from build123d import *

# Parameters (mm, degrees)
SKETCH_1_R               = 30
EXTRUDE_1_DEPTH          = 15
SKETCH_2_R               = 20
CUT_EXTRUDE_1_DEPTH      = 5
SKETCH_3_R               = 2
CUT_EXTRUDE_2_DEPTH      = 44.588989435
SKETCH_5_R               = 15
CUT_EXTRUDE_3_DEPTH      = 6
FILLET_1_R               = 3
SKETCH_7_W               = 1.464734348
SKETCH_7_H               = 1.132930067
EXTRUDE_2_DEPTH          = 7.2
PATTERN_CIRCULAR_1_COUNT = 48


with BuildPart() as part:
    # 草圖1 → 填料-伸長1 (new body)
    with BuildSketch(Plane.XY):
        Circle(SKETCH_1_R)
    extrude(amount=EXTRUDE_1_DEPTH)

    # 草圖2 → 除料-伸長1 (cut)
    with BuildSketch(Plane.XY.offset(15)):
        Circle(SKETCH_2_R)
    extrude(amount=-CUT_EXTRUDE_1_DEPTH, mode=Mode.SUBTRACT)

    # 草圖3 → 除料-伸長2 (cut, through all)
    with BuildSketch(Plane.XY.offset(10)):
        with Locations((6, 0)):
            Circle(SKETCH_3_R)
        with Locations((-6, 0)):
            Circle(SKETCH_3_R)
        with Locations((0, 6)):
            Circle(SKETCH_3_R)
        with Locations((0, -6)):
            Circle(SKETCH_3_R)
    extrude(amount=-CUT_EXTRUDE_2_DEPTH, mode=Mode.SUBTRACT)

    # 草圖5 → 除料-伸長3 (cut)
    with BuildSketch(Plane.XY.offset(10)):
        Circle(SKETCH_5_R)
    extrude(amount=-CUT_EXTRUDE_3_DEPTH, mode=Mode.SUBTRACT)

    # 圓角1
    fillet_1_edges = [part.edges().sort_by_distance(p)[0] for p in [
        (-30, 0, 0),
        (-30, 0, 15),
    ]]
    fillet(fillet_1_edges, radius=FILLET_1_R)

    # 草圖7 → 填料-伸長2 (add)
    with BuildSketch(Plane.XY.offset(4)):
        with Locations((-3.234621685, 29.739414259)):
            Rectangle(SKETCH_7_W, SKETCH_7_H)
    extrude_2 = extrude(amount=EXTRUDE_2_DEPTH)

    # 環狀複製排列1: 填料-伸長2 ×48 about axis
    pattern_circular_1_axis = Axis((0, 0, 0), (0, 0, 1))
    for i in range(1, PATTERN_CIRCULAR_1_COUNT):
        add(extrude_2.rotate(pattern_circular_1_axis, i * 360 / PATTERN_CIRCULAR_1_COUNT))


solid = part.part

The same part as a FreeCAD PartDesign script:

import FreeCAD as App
import Part
import Sketcher


def edges_at(feature, points):
    """Names of the edges that pass closest to the given points."""
    edges = feature.Shape.Edges
    near = lambda p: min(range(len(edges)), key=lambda i: edges[i].distToShape(Part.Vertex(*p))[0])
    return sorted({f"Edge{near(p) + 1}" for p in points})


def add_polygon(sketch, points):
    """Adds a closed chain of lines whose ends are joined by coincident constraints."""
    first, n = sketch.GeometryCount, len(points)
    for a, b in zip(points, points[1:] + points[:1]):
        sketch.addGeometry(Part.LineSegment(App.Vector(*a, 0), App.Vector(*b, 0)), False)
    for i in range(n):
        sketch.addConstraint(Sketcher.Constraint("Coincident", first + i, 2, first + (i + 1) % n, 1))

doc = App.newDocument("Part")
body = doc.addObject("PartDesign::Body", "Body")

# Sketch on XY plane
sketch1 = body.newObject("Sketcher::SketchObject", "Sketch")
sketch1.AttachmentSupport = (doc.getObject("XY_Plane"), [""])
sketch1.MapMode = "FlatFace"
sketch1.addGeometry(Part.Circle(App.Vector(0, 0, 0), App.Vector(0, 0, 1), 30), False)
sketch1.addConstraint([
    Sketcher.Constraint("Coincident", 0, 3, -1, 1),
    Sketcher.Constraint("Diameter", 0, 60.0),
])
pad1 = body.newObject("PartDesign::Pad", "Pad")
pad1.Profile = sketch1
pad1.Length = 15

# Sketch on XY plane
sketch2 = body.newObject("Sketcher::SketchObject", "Sketch001")
sketch2.AttachmentSupport = (doc.getObject("XY_Plane"), [""])
sketch2.MapMode = "FlatFace"
sketch2.AttachmentOffset = App.Placement(App.Vector(0, 0, 15), App.Rotation())
sketch2.addGeometry(Part.Circle(App.Vector(0, 0, 0), App.Vector(0, 0, 1), 20), False)
sketch2.addConstraint([
    Sketcher.Constraint("Coincident", 0, 3, -1, 1),
    Sketcher.Constraint("Diameter", 0, 40.0),
])
pocket1 = body.newObject("PartDesign::Pocket", "Pocket")
pocket1.Profile = sketch2
pocket1.Length = 5

# Sketch on XY plane
sketch3 = body.newObject("Sketcher::SketchObject", "Sketch002")
sketch3.AttachmentSupport = (doc.getObject("XY_Plane"), [""])
sketch3.MapMode = "FlatFace"
sketch3.AttachmentOffset = App.Placement(App.Vector(0, 0, 10), App.Rotation())
sketch3.addGeometry([
    Part.Circle(App.Vector(6, 0, 0), App.Vector(0, 0, 1), 2),
    Part.Circle(App.Vector(-6, 0, 0), App.Vector(0, 0, 1), 2),
    Part.Circle(App.Vector(0, 6, 0), App.Vector(0, 0, 1), 2),
    Part.Circle(App.Vector(0, -6, 0), App.Vector(0, 0, 1), 2),
], False)
sketch3.addConstraint([
    Sketcher.Constraint("Equal", 0, 1),
    Sketcher.Constraint("Equal", 1, 2),
    Sketcher.Constraint("Equal", 2, 3),
    Sketcher.Constraint("Symmetric", 0, 3, 1, 3, -1, 1),
    Sketcher.Constraint("Symmetric", 2, 3, 3, 3, -1, 1),
    Sketcher.Constraint("PointOnObject", 0, 3, -1),
    Sketcher.Constraint("PointOnObject", 2, 3, -2),
    Sketcher.Constraint("Diameter", 0, 4.0),
    Sketcher.Constraint("DistanceX", -1, 1, 0, 3, 6.0),
    Sketcher.Constraint("DistanceY", -1, 1, 2, 3, 6.0),
])
pocket2 = body.newObject("PartDesign::Pocket", "Pocket001")
pocket2.Profile = sketch3
pocket2.Type = "ThroughAll"

# Sketch on XY plane
sketch4 = body.newObject("Sketcher::SketchObject", "Sketch003")
sketch4.AttachmentSupport = (doc.getObject("XY_Plane"), [""])
sketch4.MapMode = "FlatFace"
sketch4.AttachmentOffset = App.Placement(App.Vector(0, 0, 10), App.Rotation())
sketch4.addGeometry(Part.Circle(App.Vector(0, 0, 0), App.Vector(0, 0, 1), 15), False)
sketch4.addConstraint([
    Sketcher.Constraint("Coincident", 0, 3, -1, 1),
    Sketcher.Constraint("Diameter", 0, 30.0),
])
pocket3 = body.newObject("PartDesign::Pocket", "Pocket002")
pocket3.Profile = sketch4
pocket3.Length = 6
doc.recompute()

fillet = body.newObject("PartDesign::Fillet", "Fillet")
fillet.Base = (pocket3, edges_at(pocket3, [(-30, 0, 0), (-30, 0, 15)]))
fillet.Radius = 3

# Sketch on XY plane
sketch5 = body.newObject("Sketcher::SketchObject", "Sketch004")
sketch5.AttachmentSupport = (doc.getObject("XY_Plane"), [""])
sketch5.MapMode = "FlatFace"
sketch5.AttachmentOffset = App.Placement(App.Vector(0, 0, 4), App.Rotation())
add_polygon(sketch5, [(-4, 30.3), (-4, 29.2), (-2.5, 29.2), (-2.5, 30.3)])  # lines 0-3
sketch5.addConstraint([
    Sketcher.Constraint("Vertical", 0),
    Sketcher.Constraint("Horizontal", 1),
    Sketcher.Constraint("Vertical", 2),
    Sketcher.Constraint("Horizontal", 3),
    Sketcher.Constraint("DistanceY", 0, 2, 0, 1, 1.13293),
    Sketcher.Constraint("DistanceX", 1, 1, 1, 2, 1.464734),
    Sketcher.Constraint("DistanceX", 0, 2, -1, 1, 3.966989),
    Sketcher.Constraint("DistanceY", -1, 1, 0, 2, 29.172949),
])
pad2 = body.newObject("PartDesign::Pad", "Pad001")
pad2.Profile = sketch5
pad2.Length = 7.2
doc.recompute()

polarpattern = body.newObject("PartDesign::PolarPattern", "PolarPattern")
polarpattern.Originals = [pad2]
polarpattern.Axis = (doc.getObject("Z_Axis"), [""])
polarpattern.Angle = 360
polarpattern.Occurrences = 48
body.Tip = polarpattern

doc.recompute()
